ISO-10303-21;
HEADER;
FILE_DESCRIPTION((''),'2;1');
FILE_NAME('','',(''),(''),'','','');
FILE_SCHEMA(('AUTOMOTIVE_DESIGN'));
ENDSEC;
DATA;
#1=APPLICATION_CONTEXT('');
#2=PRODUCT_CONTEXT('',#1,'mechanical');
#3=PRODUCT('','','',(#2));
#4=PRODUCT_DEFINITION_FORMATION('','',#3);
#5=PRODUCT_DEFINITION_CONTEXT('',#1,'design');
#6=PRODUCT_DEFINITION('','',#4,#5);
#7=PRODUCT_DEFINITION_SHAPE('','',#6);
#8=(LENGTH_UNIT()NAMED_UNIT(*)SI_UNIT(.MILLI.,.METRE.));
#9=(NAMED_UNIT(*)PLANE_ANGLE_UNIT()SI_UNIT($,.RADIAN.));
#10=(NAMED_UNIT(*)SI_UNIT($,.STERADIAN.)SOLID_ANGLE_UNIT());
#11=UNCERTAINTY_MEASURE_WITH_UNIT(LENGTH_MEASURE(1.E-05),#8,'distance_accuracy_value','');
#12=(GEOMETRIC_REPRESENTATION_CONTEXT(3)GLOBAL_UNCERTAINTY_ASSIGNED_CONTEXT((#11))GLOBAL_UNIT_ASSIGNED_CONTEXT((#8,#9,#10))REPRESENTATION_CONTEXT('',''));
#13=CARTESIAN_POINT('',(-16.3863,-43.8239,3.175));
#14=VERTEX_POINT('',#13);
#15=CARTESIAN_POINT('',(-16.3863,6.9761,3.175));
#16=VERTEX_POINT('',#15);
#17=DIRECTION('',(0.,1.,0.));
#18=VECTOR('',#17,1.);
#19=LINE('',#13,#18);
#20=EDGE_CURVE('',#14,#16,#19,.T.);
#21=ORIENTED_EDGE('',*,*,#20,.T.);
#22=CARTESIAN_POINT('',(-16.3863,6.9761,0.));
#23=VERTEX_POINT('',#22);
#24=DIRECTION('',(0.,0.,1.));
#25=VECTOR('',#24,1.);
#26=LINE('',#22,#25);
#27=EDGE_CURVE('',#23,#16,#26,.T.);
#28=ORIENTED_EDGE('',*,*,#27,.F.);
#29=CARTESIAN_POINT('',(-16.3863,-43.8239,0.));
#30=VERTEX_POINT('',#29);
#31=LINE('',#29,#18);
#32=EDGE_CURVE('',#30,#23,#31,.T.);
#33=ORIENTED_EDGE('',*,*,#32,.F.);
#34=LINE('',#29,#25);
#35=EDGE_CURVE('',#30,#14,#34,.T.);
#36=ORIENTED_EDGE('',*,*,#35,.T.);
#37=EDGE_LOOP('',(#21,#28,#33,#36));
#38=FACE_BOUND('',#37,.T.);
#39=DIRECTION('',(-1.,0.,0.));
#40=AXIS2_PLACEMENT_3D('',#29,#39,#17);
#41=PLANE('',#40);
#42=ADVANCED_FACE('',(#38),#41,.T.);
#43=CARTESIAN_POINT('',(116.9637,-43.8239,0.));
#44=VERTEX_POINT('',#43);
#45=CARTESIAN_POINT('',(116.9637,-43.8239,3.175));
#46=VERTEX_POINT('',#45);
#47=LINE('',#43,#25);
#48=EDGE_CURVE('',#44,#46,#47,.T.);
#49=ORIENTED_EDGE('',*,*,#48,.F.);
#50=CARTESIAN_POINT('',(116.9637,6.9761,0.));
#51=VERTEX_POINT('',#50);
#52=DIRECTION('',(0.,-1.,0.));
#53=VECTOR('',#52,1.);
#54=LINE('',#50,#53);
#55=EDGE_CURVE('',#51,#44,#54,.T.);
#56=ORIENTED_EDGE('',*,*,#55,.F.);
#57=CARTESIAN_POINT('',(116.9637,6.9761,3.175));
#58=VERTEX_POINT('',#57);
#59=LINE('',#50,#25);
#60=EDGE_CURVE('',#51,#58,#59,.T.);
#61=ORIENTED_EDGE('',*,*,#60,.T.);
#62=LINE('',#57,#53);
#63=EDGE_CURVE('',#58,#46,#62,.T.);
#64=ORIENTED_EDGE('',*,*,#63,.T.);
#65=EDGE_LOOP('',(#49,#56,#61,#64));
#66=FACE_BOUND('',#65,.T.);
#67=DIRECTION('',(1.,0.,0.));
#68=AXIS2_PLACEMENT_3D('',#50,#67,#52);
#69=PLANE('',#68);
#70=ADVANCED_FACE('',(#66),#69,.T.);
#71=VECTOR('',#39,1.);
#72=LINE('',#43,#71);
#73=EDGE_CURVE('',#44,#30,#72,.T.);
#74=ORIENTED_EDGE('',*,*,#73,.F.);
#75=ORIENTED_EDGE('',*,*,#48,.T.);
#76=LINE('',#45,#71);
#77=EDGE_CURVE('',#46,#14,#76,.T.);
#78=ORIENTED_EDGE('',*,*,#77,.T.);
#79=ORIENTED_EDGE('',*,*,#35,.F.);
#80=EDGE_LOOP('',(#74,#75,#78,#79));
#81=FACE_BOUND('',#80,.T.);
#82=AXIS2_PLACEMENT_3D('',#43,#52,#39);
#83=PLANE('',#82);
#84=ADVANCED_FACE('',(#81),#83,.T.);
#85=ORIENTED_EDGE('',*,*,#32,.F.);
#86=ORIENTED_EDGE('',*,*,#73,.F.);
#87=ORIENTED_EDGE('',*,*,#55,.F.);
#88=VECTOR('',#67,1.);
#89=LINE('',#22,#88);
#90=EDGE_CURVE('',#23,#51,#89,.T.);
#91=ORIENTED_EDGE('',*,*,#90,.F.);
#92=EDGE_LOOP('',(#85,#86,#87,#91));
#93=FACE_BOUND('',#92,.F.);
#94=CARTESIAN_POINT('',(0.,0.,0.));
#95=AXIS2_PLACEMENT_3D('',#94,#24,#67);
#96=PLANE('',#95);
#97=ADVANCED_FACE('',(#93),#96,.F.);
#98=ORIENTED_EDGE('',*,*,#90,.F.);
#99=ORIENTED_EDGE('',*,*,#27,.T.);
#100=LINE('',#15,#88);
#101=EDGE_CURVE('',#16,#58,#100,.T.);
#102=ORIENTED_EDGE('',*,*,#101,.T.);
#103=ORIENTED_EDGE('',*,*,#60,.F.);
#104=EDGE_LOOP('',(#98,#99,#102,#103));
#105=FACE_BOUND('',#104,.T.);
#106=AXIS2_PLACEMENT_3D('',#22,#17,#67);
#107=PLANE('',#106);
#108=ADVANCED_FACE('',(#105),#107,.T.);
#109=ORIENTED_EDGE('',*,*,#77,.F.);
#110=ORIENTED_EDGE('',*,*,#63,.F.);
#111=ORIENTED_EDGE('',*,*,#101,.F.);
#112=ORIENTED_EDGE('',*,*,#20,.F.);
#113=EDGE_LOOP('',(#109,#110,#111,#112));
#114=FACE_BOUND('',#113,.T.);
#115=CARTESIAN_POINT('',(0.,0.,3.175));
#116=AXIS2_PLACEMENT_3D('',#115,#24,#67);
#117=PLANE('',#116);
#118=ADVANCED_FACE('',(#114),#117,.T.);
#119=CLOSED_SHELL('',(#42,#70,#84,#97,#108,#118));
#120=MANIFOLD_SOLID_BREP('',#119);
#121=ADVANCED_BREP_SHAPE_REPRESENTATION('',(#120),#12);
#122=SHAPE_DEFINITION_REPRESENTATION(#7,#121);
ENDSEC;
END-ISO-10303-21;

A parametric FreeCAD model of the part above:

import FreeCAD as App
import Part
import Sketcher
from FreeCAD import Vector
Q = App.Units.Quantity


def add_polygon(sketch, points):
    """Adds a closed chain of lines whose ends are joined by coincident constraints."""
    first, n = sketch.GeometryCount, len(points)
    for a, b in zip(points, points[1:] + points[:1]):
        sketch.addGeometry(Part.LineSegment(App.Vector(*a, 0), App.Vector(*b, 0)), False)
    for i in range(n):
        sketch.addConstraint(Sketcher.Constraint("Coincident", first + i, 2, first + (i + 1) % n, 1))

doc = App.newDocument("Part")
params = doc.addObject("Spreadsheet::Sheet", "Params")
for row, (alias, value) in enumerate([
    ("sketch1_height", "2 in"),
    ("sketch1_width", "5.25 in"),
    ("pad1_length", "0.125 in"),
], start=1):
    params.set(f"A{row}", alias)
    params.set(f"B{row}", "=" + value)
    params.setAlias(f"B{row}", alias)

body = doc.addObject("PartDesign::Body", "Body")

sketch1 = body.newObject("Sketcher::SketchObject", "Sketch")
sketch1.AttachmentSupport = (doc.getObject("XY_Plane"), [""])
sketch1.MapMode = "FlatFace"
add_polygon(sketch1, [(116.9637, 6.9761), (-16.3863, 6.9761), (-16.3863, -43.8239), (116.9637, -43.8239)])
sketch1.addConstraint([
    Sketcher.Constraint("Horizontal", 0),
    Sketcher.Constraint("Vertical", 1),
    Sketcher.Constraint("Horizontal", 2),
    Sketcher.Constraint("Vertical", 3),
    Sketcher.Constraint("DistanceY", 1, 2, 1, 1, Q("2 in")),
    Sketcher.Constraint("DistanceX", 0, 2, 0, 1, Q("5.25 in")),
    Sketcher.Constraint("DistanceX", 0, 2, -1, 1, 16.3863),
    Sketcher.Constraint("DistanceY", -1, 1, 0, 2, 6.976),
])
sketch1.setExpression("Constraints[8]", "Params.sketch1_height")
sketch1.setExpression("Constraints[9]", "Params.sketch1_width")
pad1 = body.newObject("PartDesign::Pad", "Pad")
pad1.Profile = sketch1
pad1.setExpression("Length", "Params.pad1_length")

doc.recompute()
